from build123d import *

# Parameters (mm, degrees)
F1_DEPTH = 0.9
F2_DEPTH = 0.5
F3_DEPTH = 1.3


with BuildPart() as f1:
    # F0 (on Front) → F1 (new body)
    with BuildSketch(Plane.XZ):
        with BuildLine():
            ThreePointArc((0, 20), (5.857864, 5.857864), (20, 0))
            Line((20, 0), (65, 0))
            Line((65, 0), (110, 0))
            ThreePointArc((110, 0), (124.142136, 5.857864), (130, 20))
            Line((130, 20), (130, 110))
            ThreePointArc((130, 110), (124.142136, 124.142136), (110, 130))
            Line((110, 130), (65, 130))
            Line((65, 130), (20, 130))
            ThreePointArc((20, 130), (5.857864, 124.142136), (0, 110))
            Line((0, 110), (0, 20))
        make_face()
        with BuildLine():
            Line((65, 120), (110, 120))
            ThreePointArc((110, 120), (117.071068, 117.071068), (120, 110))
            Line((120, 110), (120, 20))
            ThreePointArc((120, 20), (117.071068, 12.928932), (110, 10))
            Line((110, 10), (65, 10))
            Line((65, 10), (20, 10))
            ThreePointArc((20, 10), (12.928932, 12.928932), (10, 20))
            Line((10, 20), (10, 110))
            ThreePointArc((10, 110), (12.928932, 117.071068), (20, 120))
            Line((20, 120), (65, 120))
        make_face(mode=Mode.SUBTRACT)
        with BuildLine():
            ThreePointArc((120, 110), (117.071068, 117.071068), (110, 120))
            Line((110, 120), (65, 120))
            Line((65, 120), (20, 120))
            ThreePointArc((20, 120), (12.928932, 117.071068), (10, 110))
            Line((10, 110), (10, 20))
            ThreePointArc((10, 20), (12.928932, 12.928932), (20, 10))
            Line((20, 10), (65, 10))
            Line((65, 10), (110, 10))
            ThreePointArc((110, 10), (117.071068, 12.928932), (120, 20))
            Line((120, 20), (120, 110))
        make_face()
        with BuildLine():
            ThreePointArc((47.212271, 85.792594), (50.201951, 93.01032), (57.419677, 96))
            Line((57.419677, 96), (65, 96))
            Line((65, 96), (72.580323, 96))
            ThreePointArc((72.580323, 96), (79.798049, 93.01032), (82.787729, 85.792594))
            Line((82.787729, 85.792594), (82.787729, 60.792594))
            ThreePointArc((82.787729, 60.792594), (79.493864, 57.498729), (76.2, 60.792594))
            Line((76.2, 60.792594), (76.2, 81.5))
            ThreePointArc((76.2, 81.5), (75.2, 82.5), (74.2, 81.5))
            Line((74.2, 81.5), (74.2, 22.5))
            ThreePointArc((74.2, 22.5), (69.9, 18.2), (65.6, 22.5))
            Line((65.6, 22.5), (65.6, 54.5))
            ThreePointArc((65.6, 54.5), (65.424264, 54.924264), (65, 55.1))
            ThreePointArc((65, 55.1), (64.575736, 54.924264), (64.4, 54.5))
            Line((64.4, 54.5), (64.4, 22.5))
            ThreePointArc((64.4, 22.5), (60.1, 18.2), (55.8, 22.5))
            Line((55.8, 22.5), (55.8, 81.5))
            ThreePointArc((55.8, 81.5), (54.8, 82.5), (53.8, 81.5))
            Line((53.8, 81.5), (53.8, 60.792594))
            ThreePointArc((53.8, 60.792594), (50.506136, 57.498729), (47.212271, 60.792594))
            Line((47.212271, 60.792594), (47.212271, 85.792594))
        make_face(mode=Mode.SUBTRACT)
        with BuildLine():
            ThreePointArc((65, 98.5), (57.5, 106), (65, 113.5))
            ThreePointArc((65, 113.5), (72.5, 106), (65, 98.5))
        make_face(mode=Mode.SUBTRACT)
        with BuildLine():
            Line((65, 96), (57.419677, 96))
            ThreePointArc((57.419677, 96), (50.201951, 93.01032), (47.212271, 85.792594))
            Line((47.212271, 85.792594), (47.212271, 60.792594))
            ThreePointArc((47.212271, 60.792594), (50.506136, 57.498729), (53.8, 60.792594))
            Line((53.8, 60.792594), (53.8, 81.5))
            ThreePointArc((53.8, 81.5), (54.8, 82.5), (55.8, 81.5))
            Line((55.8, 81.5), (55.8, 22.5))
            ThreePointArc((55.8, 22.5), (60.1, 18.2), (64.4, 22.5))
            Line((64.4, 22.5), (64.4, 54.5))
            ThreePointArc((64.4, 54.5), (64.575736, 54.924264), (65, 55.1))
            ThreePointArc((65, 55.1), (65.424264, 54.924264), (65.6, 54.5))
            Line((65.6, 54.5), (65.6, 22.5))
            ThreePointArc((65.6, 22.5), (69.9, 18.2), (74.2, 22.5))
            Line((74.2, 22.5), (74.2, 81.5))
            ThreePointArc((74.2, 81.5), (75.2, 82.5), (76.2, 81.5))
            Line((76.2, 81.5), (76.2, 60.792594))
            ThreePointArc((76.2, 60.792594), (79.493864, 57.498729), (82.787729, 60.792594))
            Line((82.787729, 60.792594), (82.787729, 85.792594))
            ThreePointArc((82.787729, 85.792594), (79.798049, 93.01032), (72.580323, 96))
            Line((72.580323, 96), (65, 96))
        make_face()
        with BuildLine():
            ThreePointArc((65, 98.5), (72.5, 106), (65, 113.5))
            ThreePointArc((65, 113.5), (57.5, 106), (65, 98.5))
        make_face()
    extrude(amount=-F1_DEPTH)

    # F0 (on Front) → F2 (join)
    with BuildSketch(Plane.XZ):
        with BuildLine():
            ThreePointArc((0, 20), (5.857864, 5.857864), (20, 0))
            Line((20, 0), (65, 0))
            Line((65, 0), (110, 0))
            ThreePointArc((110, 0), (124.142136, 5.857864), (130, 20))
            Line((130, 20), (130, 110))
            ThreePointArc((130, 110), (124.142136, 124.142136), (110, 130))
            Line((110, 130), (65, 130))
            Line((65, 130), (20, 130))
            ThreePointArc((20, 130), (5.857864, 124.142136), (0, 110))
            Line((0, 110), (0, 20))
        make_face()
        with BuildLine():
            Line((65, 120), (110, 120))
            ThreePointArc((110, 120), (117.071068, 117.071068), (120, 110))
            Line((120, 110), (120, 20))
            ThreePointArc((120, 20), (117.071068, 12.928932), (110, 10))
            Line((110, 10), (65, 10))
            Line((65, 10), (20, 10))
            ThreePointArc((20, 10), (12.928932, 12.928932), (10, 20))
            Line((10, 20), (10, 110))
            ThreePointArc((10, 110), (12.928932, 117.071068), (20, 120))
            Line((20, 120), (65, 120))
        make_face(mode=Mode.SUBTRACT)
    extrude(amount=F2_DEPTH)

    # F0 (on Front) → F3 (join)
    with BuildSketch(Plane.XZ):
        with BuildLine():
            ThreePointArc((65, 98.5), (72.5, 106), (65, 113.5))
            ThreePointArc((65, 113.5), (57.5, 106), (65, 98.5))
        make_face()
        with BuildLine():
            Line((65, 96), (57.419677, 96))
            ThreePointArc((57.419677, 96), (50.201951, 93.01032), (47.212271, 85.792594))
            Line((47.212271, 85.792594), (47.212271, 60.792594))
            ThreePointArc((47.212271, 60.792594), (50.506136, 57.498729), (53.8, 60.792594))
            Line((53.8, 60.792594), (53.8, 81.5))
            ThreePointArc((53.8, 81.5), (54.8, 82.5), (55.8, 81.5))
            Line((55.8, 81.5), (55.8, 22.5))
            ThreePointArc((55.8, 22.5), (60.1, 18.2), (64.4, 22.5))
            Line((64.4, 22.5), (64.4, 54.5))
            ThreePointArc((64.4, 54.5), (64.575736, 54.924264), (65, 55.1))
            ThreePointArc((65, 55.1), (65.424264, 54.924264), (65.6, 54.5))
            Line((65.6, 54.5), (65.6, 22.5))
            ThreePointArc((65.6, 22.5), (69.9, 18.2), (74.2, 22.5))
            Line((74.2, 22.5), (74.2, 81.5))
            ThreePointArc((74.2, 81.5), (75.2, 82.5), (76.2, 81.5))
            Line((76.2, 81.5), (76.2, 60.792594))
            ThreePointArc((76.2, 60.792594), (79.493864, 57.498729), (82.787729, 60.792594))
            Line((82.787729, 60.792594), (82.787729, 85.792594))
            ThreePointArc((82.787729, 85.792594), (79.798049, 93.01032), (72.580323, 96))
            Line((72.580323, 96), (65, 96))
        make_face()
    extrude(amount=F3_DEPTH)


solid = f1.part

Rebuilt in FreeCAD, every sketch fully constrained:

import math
import FreeCAD as App
import Part
import Sketcher

doc = App.newDocument("Part")
params = doc.addObject("Spreadsheet::Sheet", "Params")
for row, (alias, value) in enumerate([
    ("sketch1_radius", "19.999999 mm"),
    ("sketch1_width", "90 mm"),
    ("pad1_length", "0.9 mm"),
    ("sketch2_radius", "19.999999 mm"),
    ("sketch2_radius2", "9.999999 mm"),
    ("sketch2_width", "90 mm"),
    ("pad2_length", "0.5 mm"),
    ("sketch3_diameter", "15 mm"),
    ("sketch3_radius", "1 mm"),
    ("sketch3_radius2", "4.3 mm"),
    ("sketch3_radius3", "0.6 mm"),
    ("sketch3_height", "25 mm"),
    ("pad3_length", "1.3 mm"),
], start=1):
    params.set(f"A{row}", alias)
    params.set(f"B{row}", "=" + value)
    params.setAlias(f"B{row}", alias)

body = doc.addObject("PartDesign::Body", "Body")

sketch1 = body.newObject("Sketcher::SketchObject", "Sketch")
sketch1.AttachmentSupport = (doc.getObject("XZ_Plane"), [""])
sketch1.MapMode = "FlatFace"
sketch1.addGeometry(Part.ArcOfCircle(Part.Circle(App.Vector(20, 20, 0), App.Vector(0, 0, 1), 20), math.radians(180), math.radians(270)), False)
sketch1.addGeometry(Part.LineSegment(App.Vector(20, 0, 0), App.Vector(110, 0, 0)), False)
sketch1.addGeometry(Part.ArcOfCircle(Part.Circle(App.Vector(110, 20, 0), App.Vector(0, 0, 1), 20), math.radians(-90), math.radians(0)), False)
sketch1.addGeometry(Part.LineSegment(App.Vector(130, 20, 0), App.Vector(130, 110, 0)), False)
sketch1.addGeometry(Part.ArcOfCircle(Part.Circle(App.Vector(110, 110, 0), App.Vector(0, 0, 1), 20), math.radians(0), math.radians(90)), False)
sketch1.addGeometry(Part.LineSegment(App.Vector(110, 130, 0), App.Vector(20, 130, 0)), False)
sketch1.addGeometry(Part.ArcOfCircle(Part.Circle(App.Vector(20, 110, 0), App.Vector(0, 0, 1), 20), math.radians(90), math.radians(180)), False)
sketch1.addGeometry(Part.LineSegment(App.Vector(0, 110, 0), App.Vector(0, 20, 0)), False)
sketch1.addConstraint(Sketcher.Constraint("Tangent", 0, 2, 1, 1))
sketch1.addConstraint(Sketcher.Constraint("Tangent", 1, 2, 2, 1))
sketch1.addConstraint(Sketcher.Constraint("Tangent", 2, 2, 3, 1))
sketch1.addConstraint(Sketcher.Constraint("Tangent", 3, 2, 4, 1))
sketch1.addConstraint(Sketcher.Constraint("Tangent", 4, 2, 5, 1))
sketch1.addConstraint(Sketcher.Constraint("Tangent", 5, 2, 6, 1))
sketch1.addConstraint(Sketcher.Constraint("Tangent", 6, 2, 7, 1))
sketch1.addConstraint(Sketcher.Constraint("Tangent", 7, 2, 0, 1))
sketch1.addConstraint(Sketcher.Constraint("Horizontal", 1))
sketch1.addConstraint(Sketcher.Constraint("Vertical", 3))
sketch1.addConstraint(Sketcher.Constraint("Horizontal", 5))
sketch1.addConstraint(Sketcher.Constraint("Vertical", 7))
sketch1.addConstraint(Sketcher.Constraint("Equal", 0, 2))
sketch1.addConstraint(Sketcher.Constraint("Equal", 2, 4))
sketch1.addConstraint(Sketcher.Constraint("Equal", 4, 6))
sketch1.addConstraint(Sketcher.Constraint("PointOnObject", 0, 2, -1))
sketch1.addConstraint(Sketcher.Constraint("PointOnObject", 6, 2, -2))
sketch1.addConstraint(Sketcher.Constraint("Equal", 5, 3))
sketch1.addConstraint(Sketcher.Constraint("Radius", 0, 19.999999))
sketch1.addConstraint(Sketcher.Constraint("DistanceX", 1, 1, 1, 2, 90.0))
sketch1.setExpression("Constraints[18]", "Params.sketch1_radius")
sketch1.setExpression("Constraints[19]", "Params.sketch1_width")
pad1 = body.newObject("PartDesign::Pad", "Pad")
pad1.Profile = sketch1
pad1.setExpression("Length", "Params.pad1_length")
pad1.Reversed = True

sketch2 = body.newObject("Sketcher::SketchObject", "Sketch001")
sketch2.AttachmentSupport = (doc.getObject("XZ_Plane"), [""])
sketch2.MapMode = "FlatFace"
sketch2.addGeometry(Part.ArcOfCircle(Part.Circle(App.Vector(20, 20, 0), App.Vector(0, 0, 1), 20), math.radians(180), math.radians(270)), False)
sketch2.addGeometry(Part.LineSegment(App.Vector(20, 0, 0), App.Vector(110, 0, 0)), False)
sketch2.addGeometry(Part.ArcOfCircle(Part.Circle(App.Vector(110, 20, 0), App.Vector(0, 0, 1), 20), math.radians(-90), math.radians(0)), False)
sketch2.addGeometry(Part.LineSegment(App.Vector(130, 20, 0), App.Vector(130, 110, 0)), False)
sketch2.addGeometry(Part.ArcOfCircle(Part.Circle(App.Vector(110, 110, 0), App.Vector(0, 0, 1), 20), math.radians(0), math.radians(90)), False)
sketch2.addGeometry(Part.LineSegment(App.Vector(110, 130, 0), App.Vector(20, 130, 0)), False)
sketch2.addGeometry(Part.ArcOfCircle(Part.Circle(App.Vector(20, 110, 0), App.Vector(0, 0, 1), 20), math.radians(90), math.radians(180)), False)
sketch2.addGeometry(Part.LineSegment(App.Vector(0, 110, 0), App.Vector(0, 20, 0)), False)
sketch2.addGeometry(Part.LineSegment(App.Vector(20, 120, 0), App.Vector(110, 120, 0)), False)
sketch2.addGeometry(Part.ArcOfCircle(Part.Circle(App.Vector(110, 110, 0), App.Vector(0, 0, 1), 10), math.radians(0), math.radians(90)), False)
sketch2.addGeometry(Part.LineSegment(App.Vector(120, 110, 0), App.Vector(120, 20, 0)), False)
sketch2.addGeometry(Part.ArcOfCircle(Part.Circle(App.Vector(110, 20, 0), App.Vector(0, 0, 1), 10), math.radians(-90), math.radians(0)), False)
sketch2.addGeometry(Part.LineSegment(App.Vector(110, 10, 0), App.Vector(20, 10, 0)), False)
sketch2.addGeometry(Part.ArcOfCircle(Part.Circle(App.Vector(20, 20, 0), App.Vector(0, 0, 1), 10), math.radians(180), math.radians(270)), False)
sketch2.addGeometry(Part.LineSegment(App.Vector(10, 20, 0), App.Vector(10, 110, 0)), False)
sketch2.addGeometry(Part.ArcOfCircle(Part.Circle(App.Vector(20, 110, 0), App.Vector(0, 0, 1), 10), math.radians(90), math.radians(180)), False)
sketch2.addConstraint(Sketcher.Constraint("Tangent", 0, 2, 1, 1))
sketch2.addConstraint(Sketcher.Constraint("Tangent", 1, 2, 2, 1))
sketch2.addConstraint(Sketcher.Constraint("Tangent", 2, 2, 3, 1))
sketch2.addConstraint(Sketcher.Constraint("Tangent", 3, 2, 4, 1))
sketch2.addConstraint(Sketcher.Constraint("Tangent", 4, 2, 5, 1))
sketch2.addConstraint(Sketcher.Constraint("Tangent", 5, 2, 6, 1))
sketch2.addConstraint(Sketcher.Constraint("Tangent", 6, 2, 7, 1))
sketch2.addConstraint(Sketcher.Constraint("Tangent", 7, 2, 0, 1))
sketch2.addConstraint(Sketcher.Constraint("Tangent", 8, 2, 9, 2))
sketch2.addConstraint(Sketcher.Constraint("Tangent", 9, 1, 10, 1))
sketch2.addConstraint(Sketcher.Constraint("Tangent", 10, 2, 11, 2))
sketch2.addConstraint(Sketcher.Constraint("Tangent", 11, 1, 12, 1))
sketch2.addConstraint(Sketcher.Constraint("Tangent", 12, 2, 13, 2))
sketch2.addConstraint(Sketcher.Constraint("Tangent", 13, 1, 14, 1))
sketch2.addConstraint(Sketcher.Constraint("Tangent", 14, 2, 15, 2))
sketch2.addConstraint(Sketcher.Constraint("Tangent", 15, 1, 8, 1))
sketch2.addConstraint(Sketcher.Constraint("Horizontal", 1))
sketch2.addConstraint(Sketcher.Constraint("Vertical", 3))
sketch2.addConstraint(Sketcher.Constraint("Horizontal", 5))
sketch2.addConstraint(Sketcher.Constraint("Vertical", 7))
sketch2.addConstraint(Sketcher.Constraint("Horizontal", 8))
sketch2.addConstraint(Sketcher.Constraint("Vertical", 10))
sketch2.addConstraint(Sketcher.Constraint("Horizontal", 12))
sketch2.addConstraint(Sketcher.Constraint("Vertical", 14))
sketch2.addConstraint(Sketcher.Constraint("Coincident", 9, 3, 4, 3))
sketch2.addConstraint(Sketcher.Constraint("Coincident", 11, 3, 2, 3))
sketch2.addConstraint(Sketcher.Constraint("Coincident", 13, 3, 0, 3))
sketch2.addConstraint(Sketcher.Constraint("Equal", 0, 2))
sketch2.addConstraint(Sketcher.Constraint("Equal", 2, 4))
sketch2.addConstraint(Sketcher.Constraint("Equal", 4, 6))
sketch2.addConstraint(Sketcher.Constraint("Equal", 13, 15))
sketch2.addConstraint(Sketcher.Constraint("PointOnObject", 0, 2, -1))
sketch2.addConstraint(Sketcher.Constraint("PointOnObject", 6, 2, -2))
sketch2.addConstraint(Sketcher.Constraint("Equal", 12, 3))
sketch2.addConstraint(Sketcher.Constraint("Radius", 0, 19.999999))
sketch2.addConstraint(Sketcher.Constraint("Radius", 9, 9.999999))
sketch2.addConstraint(Sketcher.Constraint("DistanceX", 1, 1, 1, 2, 90.0))
sketch2.setExpression("Constraints[34]", "Params.sketch2_radius")
sketch2.setExpression("Constraints[35]", "Params.sketch2_radius2")
sketch2.setExpression("Constraints[36]", "Params.sketch2_width")
pad2 = body.newObject("PartDesign::Pad", "Pad001")
pad2.Profile = sketch2
pad2.setExpression("Length", "Params.pad2_length")

sketch3 = body.newObject("Sketcher::SketchObject", "Sketch002")
sketch3.AttachmentSupport = (doc.getObject("XZ_Plane"), [""])
sketch3.MapMode = "FlatFace"
sketch3.addGeometry(Part.Circle(App.Vector(65, 106, 0), App.Vector(0, 0, 1), 7.5), False)
sketch3.addGeometry(Part.ArcOfCircle(Part.Circle(App.Vector(57.4, 85.8, 0), App.Vector(0, 0, 1), 10.2), math.radians(90), math.radians(180)), False)
sketch3.addGeometry(Part.LineSegment(App.Vector(47.2, 85.8, 0), App.Vector(47.2, 60.8, 0)), False)
sketch3.addGeometry(Part.ArcOfCircle(Part.Circle(App.Vector(50.5, 60.8, 0), App.Vector(0, 0, 1), 3.3), math.radians(180), math.radians(360)), False)
sketch3.addGeometry(Part.LineSegment(App.Vector(53.8, 60.8, 0), App.Vector(53.8, 81.5, 0)), False)
sketch3.addGeometry(Part.ArcOfCircle(Part.Circle(App.Vector(54.8, 81.5, 0), App.Vector(0, 0, 1), 1), math.radians(0), math.radians(180)), False)
sketch3.addGeometry(Part.LineSegment(App.Vector(55.8, 81.5, 0), App.Vector(55.8, 22.5, 0)), False)
sketch3.addGeometry(Part.ArcOfCircle(Part.Circle(App.Vector(60.1, 22.5, 0), App.Vector(0, 0, 1), 4.3), math.radians(180), math.radians(360)), False)
sketch3.addGeometry(Part.LineSegment(App.Vector(64.4, 22.5, 0), App.Vector(64.4, 54.5, 0)), False)
sketch3.addGeometry(Part.ArcOfCircle(Part.Circle(App.Vector(65, 54.5, 0), App.Vector(0, 0, 1), 0.6), math.radians(90), math.radians(180)), False)
sketch3.addGeometry(Part.ArcOfCircle(Part.Circle(App.Vector(65, 54.5, 0), App.Vector(0, 0, 1), 0.6), math.radians(0), math.radians(90)), False)
sketch3.addGeometry(Part.LineSegment(App.Vector(65.6, 54.5, 0), App.Vector(65.6, 22.5, 0)), False)
sketch3.addGeometry(Part.ArcOfCircle(Part.Circle(App.Vector(69.9, 22.5, 0), App.Vector(0, 0, 1), 4.3), math.radians(180), math.radians(360)), False)
sketch3.addGeometry(Part.LineSegment(App.Vector(74.2, 22.5, 0), App.Vector(74.2, 81.5, 0)), False)
sketch3.addGeometry(Part.ArcOfCircle(Part.Circle(App.Vector(75.2, 81.5, 0), App.Vector(0, 0, 1), 1), math.radians(0), math.radians(180)), False)
sketch3.addGeometry(Part.LineSegment(App.Vector(76.2, 81.5, 0), App.Vector(76.2, 60.8, 0)), False)
sketch3.addGeometry(Part.ArcOfCircle(Part.Circle(App.Vector(79.5, 60.8, 0), App.Vector(0, 0, 1), 3.3), math.radians(180), math.radians(360)), False)
sketch3.addGeometry(Part.LineSegment(App.Vector(82.8, 60.8, 0), App.Vector(82.8, 85.8, 0)), False)
sketch3.addGeometry(Part.ArcOfCircle(Part.Circle(App.Vector(72.6, 85.8, 0), App.Vector(0, 0, 1), 10.2), math.radians(0), math.radians(90)), False)
sketch3.addGeometry(Part.LineSegment(App.Vector(72.6, 96, 0), App.Vector(57.4, 96, 0)), False)
sketch3.addConstraint(Sketcher.Constraint("Tangent", 1, 2, 2, 1))
sketch3.addConstraint(Sketcher.Constraint("Tangent", 2, 2, 3, 1))
sketch3.addConstraint(Sketcher.Constraint("Tangent", 3, 2, 4, 1))
sketch3.addConstraint(Sketcher.Constraint("Tangent", 4, 2, 5, 2))
sketch3.addConstraint(Sketcher.Constraint("Tangent", 5, 1, 6, 1))
sketch3.addConstraint(Sketcher.Constraint("Tangent", 6, 2, 7, 1))
sketch3.addConstraint(Sketcher.Constraint("Tangent", 7, 2, 8, 1))
sketch3.addConstraint(Sketcher.Constraint("Tangent", 8, 2, 9, 2))
sketch3.addConstraint(Sketcher.Constraint("Tangent", 9, 1, 10, 2))
sketch3.addConstraint(Sketcher.Constraint("Tangent", 10, 1, 11, 1))
sketch3.addConstraint(Sketcher.Constraint("Tangent", 11, 2, 12, 1))
sketch3.addConstraint(Sketcher.Constraint("Tangent", 12, 2, 13, 1))
sketch3.addConstraint(Sketcher.Constraint("Tangent", 13, 2, 14, 2))
sketch3.addConstraint(Sketcher.Constraint("Tangent", 14, 1, 15, 1))
sketch3.addConstraint(Sketcher.Constraint("Tangent", 15, 2, 16, 1))
sketch3.addConstraint(Sketcher.Constraint("Tangent", 16, 2, 17, 1))
sketch3.addConstraint(Sketcher.Constraint("Tangent", 17, 2, 18, 1))
sketch3.addConstraint(Sketcher.Constraint("Tangent", 18, 2, 19, 1))
sketch3.addConstraint(Sketcher.Constraint("Tangent", 19, 2, 1, 1))
sketch3.addConstraint(Sketcher.Constraint("Vertical", 2))
sketch3.addConstraint(Sketcher.Constraint("Vertical", 4))
sketch3.addConstraint(Sketcher.Constraint("Vertical", 6))
sketch3.addConstraint(Sketcher.Constraint("Vertical", 8))
sketch3.addConstraint(Sketcher.Constraint("Vertical", 11))
sketch3.addConstraint(Sketcher.Constraint("Vertical", 13))
sketch3.addConstraint(Sketcher.Constraint("Vertical", 15))
sketch3.addConstraint(Sketcher.Constraint("Vertical", 17))
sketch3.addConstraint(Sketcher.Constraint("Horizontal", 19))
sketch3.addConstraint(Sketcher.Constraint("Equal", 9, 10))
sketch3.addConstraint(Sketcher.Constraint("Equal", 7, 12))
sketch3.addConstraint(Sketcher.Constraint("Equal", 5, 14))
sketch3.addConstraint(Sketcher.Constraint("Equal", 3, 16))
sketch3.addConstraint(Sketcher.Constraint("Equal", 1, 18))
sketch3.addConstraint(Sketcher.Constraint("Horizontal", 7, 3, 12, 3))
sketch3.addConstraint(Sketcher.Constraint("Horizontal", 5, 3, 14, 3))
sketch3.addConstraint(Sketcher.Constraint("Horizontal", 3, 3, 16, 3))
sketch3.addConstraint(Sketcher.Constraint("Vertical", 0, 3, 9, 3))
sketch3.addConstraint(Sketcher.Constraint("Vertical", 10, 3, 9, 1))
sketch3.addConstraint(Sketcher.Constraint("Diameter", 0, 15.0))
sketch3.addConstraint(Sketcher.Constraint("Radius", 5, 1.0))
sketch3.addConstraint(Sketcher.Constraint("Radius", 7, 4.3))
sketch3.addConstraint(Sketcher.Constraint("Radius", 9, 0.6))
sketch3.addConstraint(Sketcher.Constraint("DistanceY", 2, 2, 2, 1, 25.0))
sketch3.addConstraint(Sketcher.Constraint("DistanceY", 6, 2, 6, 1, 59.0))
sketch3.addConstraint(Sketcher.Constraint("DistanceY", 8, 1, 8, 2, 32.0))
sketch3.addConstraint(Sketcher.Constraint("DistanceX", -1, 1, 0, 3, 65.0))
sketch3.addConstraint(Sketcher.Constraint("DistanceY", -1, 1, 0, 3, 106.0))
sketch3.addConstraint(Sketcher.Constraint("DistanceY", -1, 1, 18, 2, 96.0))
sketch3.addConstraint(Sketcher.Constraint("DistanceY", -1, 1, 5, 3, 81.5))
sketch3.addConstraint(Sketcher.Constraint("Radius", 1, 10.207406))
sketch3.addConstraint(Sketcher.Constraint("Radius", 3, 3.293865))
sketch3.setExpression("Constraints[38]", "Params.sketch3_diameter")
sketch3.setExpression("Constraints[39]", "Params.sketch3_radius")
sketch3.setExpression("Constraints[40]", "Params.sketch3_radius2")
sketch3.setExpression("Constraints[41]", "Params.sketch3_radius3")
sketch3.setExpression("Constraints[42]", "Params.sketch3_height")
pad3 = body.newObject("PartDesign::Pad", "Pad002")
pad3.Profile = sketch3
pad3.setExpression("Length", "Params.pad3_length")

doc.recompute()
